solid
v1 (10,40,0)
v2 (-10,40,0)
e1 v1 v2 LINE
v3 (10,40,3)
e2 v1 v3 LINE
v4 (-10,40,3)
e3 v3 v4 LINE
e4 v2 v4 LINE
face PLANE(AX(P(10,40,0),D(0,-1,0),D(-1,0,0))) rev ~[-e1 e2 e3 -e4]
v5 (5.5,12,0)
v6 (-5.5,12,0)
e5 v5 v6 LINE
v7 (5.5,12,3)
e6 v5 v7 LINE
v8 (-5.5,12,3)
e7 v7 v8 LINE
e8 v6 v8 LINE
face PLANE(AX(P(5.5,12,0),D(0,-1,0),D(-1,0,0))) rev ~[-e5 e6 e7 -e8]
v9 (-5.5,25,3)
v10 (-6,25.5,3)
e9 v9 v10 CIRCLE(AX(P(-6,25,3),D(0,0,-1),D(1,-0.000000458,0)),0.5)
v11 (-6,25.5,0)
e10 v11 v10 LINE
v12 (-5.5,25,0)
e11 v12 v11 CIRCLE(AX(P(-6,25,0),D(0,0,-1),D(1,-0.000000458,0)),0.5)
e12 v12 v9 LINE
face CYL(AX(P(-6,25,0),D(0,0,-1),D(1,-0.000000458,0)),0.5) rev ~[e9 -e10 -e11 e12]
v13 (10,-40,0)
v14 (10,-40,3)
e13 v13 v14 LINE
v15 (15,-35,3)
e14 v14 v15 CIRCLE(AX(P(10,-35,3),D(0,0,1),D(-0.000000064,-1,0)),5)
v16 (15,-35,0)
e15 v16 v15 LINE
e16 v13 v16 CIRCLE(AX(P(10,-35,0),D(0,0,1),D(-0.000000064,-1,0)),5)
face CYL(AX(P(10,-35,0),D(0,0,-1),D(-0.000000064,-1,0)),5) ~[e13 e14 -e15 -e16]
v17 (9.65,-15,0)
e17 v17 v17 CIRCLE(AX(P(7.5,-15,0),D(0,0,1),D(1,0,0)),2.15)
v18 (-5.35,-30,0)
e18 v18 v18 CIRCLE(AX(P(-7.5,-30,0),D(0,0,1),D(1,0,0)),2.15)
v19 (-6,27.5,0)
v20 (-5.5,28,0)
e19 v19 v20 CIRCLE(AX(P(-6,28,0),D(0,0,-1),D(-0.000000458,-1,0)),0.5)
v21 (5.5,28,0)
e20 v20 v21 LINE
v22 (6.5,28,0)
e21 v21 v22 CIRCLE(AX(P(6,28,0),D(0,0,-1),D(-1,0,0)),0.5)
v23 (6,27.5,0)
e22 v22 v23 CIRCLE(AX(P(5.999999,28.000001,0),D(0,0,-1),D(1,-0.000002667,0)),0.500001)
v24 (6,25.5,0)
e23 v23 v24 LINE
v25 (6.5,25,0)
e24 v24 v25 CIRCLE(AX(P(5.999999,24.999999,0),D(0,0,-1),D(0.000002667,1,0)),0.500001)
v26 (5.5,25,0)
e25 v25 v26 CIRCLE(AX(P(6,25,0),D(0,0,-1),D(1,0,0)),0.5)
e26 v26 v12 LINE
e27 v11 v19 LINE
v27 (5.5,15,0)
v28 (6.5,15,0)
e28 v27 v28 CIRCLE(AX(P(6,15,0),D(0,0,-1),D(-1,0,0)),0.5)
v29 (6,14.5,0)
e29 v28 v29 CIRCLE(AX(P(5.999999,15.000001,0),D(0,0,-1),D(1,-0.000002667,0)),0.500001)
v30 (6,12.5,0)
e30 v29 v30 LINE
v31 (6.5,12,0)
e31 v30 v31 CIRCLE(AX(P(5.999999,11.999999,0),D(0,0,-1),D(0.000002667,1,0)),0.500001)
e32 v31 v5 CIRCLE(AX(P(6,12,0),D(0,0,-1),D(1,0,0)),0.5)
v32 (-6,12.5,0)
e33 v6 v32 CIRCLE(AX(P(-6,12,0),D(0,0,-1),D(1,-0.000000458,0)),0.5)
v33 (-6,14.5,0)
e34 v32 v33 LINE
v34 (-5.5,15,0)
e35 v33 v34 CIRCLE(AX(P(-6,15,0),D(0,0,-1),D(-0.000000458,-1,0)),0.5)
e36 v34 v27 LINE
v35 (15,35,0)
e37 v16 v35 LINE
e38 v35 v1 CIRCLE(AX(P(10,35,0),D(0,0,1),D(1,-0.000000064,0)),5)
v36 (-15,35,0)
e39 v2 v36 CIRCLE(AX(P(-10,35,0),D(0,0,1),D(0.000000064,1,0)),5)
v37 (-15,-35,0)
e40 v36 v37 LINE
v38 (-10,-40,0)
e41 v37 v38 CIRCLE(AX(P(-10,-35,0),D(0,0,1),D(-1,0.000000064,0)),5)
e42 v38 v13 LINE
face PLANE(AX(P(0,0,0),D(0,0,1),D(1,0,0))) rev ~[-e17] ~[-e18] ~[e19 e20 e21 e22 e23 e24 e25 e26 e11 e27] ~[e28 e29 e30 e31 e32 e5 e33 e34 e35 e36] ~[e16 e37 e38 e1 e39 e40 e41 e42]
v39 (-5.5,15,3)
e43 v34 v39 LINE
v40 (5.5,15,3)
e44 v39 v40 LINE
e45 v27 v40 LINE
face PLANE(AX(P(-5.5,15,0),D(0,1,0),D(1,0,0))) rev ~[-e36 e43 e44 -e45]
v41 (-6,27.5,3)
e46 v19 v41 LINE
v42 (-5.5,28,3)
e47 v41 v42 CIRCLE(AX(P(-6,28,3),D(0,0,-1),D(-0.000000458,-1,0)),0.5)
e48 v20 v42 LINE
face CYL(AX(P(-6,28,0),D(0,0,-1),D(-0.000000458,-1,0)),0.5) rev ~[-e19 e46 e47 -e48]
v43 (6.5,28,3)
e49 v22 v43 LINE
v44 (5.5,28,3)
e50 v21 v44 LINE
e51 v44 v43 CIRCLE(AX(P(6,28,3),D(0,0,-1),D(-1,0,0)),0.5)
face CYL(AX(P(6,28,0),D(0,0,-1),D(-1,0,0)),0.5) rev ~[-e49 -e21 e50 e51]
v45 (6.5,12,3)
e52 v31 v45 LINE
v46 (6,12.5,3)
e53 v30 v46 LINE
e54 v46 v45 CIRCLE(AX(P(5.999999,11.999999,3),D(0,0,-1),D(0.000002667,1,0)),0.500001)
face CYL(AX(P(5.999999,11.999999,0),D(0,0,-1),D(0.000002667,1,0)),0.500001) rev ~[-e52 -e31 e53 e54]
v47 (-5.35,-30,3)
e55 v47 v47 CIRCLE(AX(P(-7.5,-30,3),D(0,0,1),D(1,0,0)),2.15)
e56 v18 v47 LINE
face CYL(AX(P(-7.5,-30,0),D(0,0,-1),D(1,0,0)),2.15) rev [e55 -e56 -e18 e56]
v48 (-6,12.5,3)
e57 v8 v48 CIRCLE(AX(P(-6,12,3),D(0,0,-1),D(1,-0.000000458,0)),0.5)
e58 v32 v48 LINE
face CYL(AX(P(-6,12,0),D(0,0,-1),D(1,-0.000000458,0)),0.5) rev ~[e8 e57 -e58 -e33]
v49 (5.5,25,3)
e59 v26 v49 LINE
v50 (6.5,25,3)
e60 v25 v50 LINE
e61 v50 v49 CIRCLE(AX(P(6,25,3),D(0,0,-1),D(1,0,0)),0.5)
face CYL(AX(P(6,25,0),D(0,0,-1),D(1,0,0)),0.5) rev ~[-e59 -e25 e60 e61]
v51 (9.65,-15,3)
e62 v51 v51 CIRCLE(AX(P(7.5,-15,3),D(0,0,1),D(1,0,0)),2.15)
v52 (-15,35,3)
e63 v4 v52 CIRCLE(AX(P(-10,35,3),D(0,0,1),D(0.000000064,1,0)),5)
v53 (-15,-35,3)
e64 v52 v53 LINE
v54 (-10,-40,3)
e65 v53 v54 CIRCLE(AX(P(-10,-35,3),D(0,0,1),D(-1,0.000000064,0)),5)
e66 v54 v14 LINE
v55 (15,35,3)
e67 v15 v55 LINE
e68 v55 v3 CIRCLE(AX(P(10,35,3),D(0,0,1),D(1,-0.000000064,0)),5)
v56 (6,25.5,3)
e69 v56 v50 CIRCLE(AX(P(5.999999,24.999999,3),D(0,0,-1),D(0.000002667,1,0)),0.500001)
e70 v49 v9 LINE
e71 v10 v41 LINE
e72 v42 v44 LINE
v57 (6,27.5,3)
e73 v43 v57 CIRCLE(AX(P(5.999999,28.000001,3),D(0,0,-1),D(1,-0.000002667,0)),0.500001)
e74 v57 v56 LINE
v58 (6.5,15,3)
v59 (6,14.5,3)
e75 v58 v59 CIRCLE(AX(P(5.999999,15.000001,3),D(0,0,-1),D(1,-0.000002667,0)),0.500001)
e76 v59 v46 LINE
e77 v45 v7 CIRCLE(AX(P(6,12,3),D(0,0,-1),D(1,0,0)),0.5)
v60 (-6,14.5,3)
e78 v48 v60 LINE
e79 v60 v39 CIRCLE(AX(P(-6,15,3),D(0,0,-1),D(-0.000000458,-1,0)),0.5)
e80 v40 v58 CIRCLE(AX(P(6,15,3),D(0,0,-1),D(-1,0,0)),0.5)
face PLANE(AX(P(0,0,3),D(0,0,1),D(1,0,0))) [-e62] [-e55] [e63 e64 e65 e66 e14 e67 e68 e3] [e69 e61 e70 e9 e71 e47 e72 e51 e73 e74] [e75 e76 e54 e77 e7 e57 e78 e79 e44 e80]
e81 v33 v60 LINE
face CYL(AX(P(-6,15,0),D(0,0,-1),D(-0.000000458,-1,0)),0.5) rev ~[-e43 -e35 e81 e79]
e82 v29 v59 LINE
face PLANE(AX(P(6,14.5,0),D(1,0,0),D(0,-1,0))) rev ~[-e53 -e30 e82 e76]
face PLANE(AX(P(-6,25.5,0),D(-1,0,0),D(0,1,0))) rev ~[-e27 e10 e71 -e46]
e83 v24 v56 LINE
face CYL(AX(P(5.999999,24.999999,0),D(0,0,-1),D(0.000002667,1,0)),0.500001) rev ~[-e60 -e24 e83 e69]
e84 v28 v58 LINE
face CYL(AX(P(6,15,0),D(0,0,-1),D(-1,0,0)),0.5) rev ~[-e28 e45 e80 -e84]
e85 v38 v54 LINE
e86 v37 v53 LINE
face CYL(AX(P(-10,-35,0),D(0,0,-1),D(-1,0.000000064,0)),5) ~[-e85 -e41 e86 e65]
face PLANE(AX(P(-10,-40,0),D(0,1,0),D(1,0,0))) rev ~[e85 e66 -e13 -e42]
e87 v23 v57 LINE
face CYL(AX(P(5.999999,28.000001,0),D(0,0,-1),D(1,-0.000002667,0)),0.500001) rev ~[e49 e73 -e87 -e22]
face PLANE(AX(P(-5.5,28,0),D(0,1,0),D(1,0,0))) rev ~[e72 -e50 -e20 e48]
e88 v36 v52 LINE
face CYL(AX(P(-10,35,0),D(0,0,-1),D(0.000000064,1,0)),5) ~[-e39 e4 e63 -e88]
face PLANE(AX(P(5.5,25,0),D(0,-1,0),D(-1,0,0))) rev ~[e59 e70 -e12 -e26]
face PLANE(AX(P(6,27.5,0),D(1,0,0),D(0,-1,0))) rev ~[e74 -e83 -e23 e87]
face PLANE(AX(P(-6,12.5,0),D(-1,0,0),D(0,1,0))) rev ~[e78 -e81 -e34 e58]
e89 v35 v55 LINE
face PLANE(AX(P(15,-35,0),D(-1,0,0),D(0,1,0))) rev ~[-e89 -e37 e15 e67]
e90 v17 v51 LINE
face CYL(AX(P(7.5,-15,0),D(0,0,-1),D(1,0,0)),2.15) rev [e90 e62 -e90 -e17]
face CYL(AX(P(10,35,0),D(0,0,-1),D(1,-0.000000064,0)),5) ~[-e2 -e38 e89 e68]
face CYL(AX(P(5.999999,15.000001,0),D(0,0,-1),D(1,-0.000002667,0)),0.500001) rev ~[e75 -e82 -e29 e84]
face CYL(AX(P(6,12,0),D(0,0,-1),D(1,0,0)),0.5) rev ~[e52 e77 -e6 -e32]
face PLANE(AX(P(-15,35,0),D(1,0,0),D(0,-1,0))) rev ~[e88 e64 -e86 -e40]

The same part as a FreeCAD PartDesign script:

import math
import FreeCAD as App
import Part
import Sketcher
from FreeCAD import Vector

doc = App.newDocument("Part")
body = doc.addObject("PartDesign::Body", "Body")

# Sketch on XY plane
sketch1 = body.newObject("Sketcher::SketchObject", "Sketch")
sketch1.AttachmentSupport = (doc.getObject("XY_Plane"), [""])
sketch1.MapMode = "FlatFace"
sketch1.addGeometry([
    Part.ArcOfCircle(Part.Circle(Vector(10, 35, 0), Vector(0, 0, 1), 5), math.radians(0), math.radians(90)),  # 0
    Part.LineSegment(Vector(10, 40, 0), Vector(-10, 40, 0)),  # 1
    Part.ArcOfCircle(Part.Circle(Vector(-10, 35, 0), Vector(0, 0, 1), 5), math.radians(90), math.radians(180)),  # 2
    Part.LineSegment(Vector(-15, 35, 0), Vector(-15, -35, 0)),  # 3
    Part.ArcOfCircle(Part.Circle(Vector(-10, -35, 0), Vector(0, 0, 1), 5), math.radians(180), math.radians(270)),  # 4
    Part.LineSegment(Vector(-10, -40, 0), Vector(10, -40, 0)),  # 5
    Part.ArcOfCircle(Part.Circle(Vector(10, -35, 0), Vector(0, 0, 1), 5), math.radians(-90), math.radians(0)),  # 6
    Part.LineSegment(Vector(15, -35, 0), Vector(15, 35, 0)),  # 7
    Part.Circle(Vector(-7.5, -30, 0), Vector(0, 0, 1), 2.15),  # 8
    Part.Circle(Vector(7.5, -15, 0), Vector(0, 0, 1), 2.15),  # 9
    Part.ArcOfCircle(Part.Circle(Vector(6, 12, 0), Vector(0, 0, 1), 0.5), math.radians(180), math.radians(360)),  # 10
    Part.LineSegment(Vector(5.5, 12, 0), Vector(-5.5, 12, 0)),  # 11
    Part.ArcOfCircle(Part.Circle(Vector(-6, 12, 0), Vector(0, 0, 1), 0.5), math.radians(90), math.radians(360)),  # 12
    Part.LineSegment(Vector(-6, 12.5, 0), Vector(-6, 14.5, 0)),  # 13
    Part.ArcOfCircle(Part.Circle(Vector(-6, 15, 0), Vector(0, 0, 1), 0.5), math.radians(0), math.radians(270)),  # 14
    Part.LineSegment(Vector(-5.5, 15, 0), Vector(5.5, 15, 0)),  # 15
    Part.ArcOfCircle(Part.Circle(Vector(6, 15, 0), Vector(0, 0, 1), 0.5), math.radians(0), math.radians(180)),  # 16
    Part.ArcOfCircle(Part.Circle(Vector(6, 15, 0), Vector(0, 0, 1), 0.5), math.radians(-90), math.radians(0)),  # 17
    Part.LineSegment(Vector(6, 14.5, 0), Vector(6, 12.5, 0)),  # 18
    Part.ArcOfCircle(Part.Circle(Vector(6, 12, 0), Vector(0, 0, 1), 0.5), math.radians(0), math.radians(90)),  # 19
    Part.ArcOfCircle(Part.Circle(Vector(6, 25, 0), Vector(0, 0, 1), 0.5), math.radians(180), math.radians(360)),  # 20
    Part.LineSegment(Vector(5.5, 25, 0), Vector(-5.5, 25, 0)),  # 21
    Part.ArcOfCircle(Part.Circle(Vector(-6, 25, 0), Vector(0, 0, 1), 0.5), math.radians(90), math.radians(360)),  # 22
    Part.LineSegment(Vector(-6, 25.5, 0), Vector(-6, 27.5, 0)),  # 23
    Part.ArcOfCircle(Part.Circle(Vector(-6, 28, 0), Vector(0, 0, 1), 0.5), math.radians(0), math.radians(270)),  # 24
    Part.LineSegment(Vector(-5.5, 28, 0), Vector(5.5, 28, 0)),  # 25
    Part.ArcOfCircle(Part.Circle(Vector(6, 28, 0), Vector(0, 0, 1), 0.5), math.radians(0), math.radians(180)),  # 26
    Part.ArcOfCircle(Part.Circle(Vector(6, 28, 0), Vector(0, 0, 1), 0.5), math.radians(-90), math.radians(0)),  # 27
    Part.LineSegment(Vector(6, 27.5, 0), Vector(6, 25.5, 0)),  # 28
    Part.ArcOfCircle(Part.Circle(Vector(6, 25, 0), Vector(0, 0, 1), 0.5), math.radians(0), math.radians(90)),  # 29
], False)
sketch1.addConstraint([
    Sketcher.Constraint("Tangent", 0, 2, 1, 1),
    Sketcher.Constraint("Tangent", 1, 2, 2, 1),
    Sketcher.Constraint("Tangent", 2, 2, 3, 1),
    Sketcher.Constraint("Tangent", 3, 2, 4, 1),
    Sketcher.Constraint("Tangent", 4, 2, 5, 1),
    Sketcher.Constraint("Tangent", 5, 2, 6, 1),
    Sketcher.Constraint("Tangent", 6, 2, 7, 1),
    Sketcher.Constraint("Tangent", 7, 2, 0, 1),
    Sketcher.Constraint("Coincident", 10, 1, 11, 1),
    Sketcher.Constraint("Coincident", 11, 2, 12, 2),
    Sketcher.Constraint("Coincident", 12, 1, 13, 1),
    Sketcher.Constraint("Coincident", 13, 2, 14, 2),
    Sketcher.Constraint("Coincident", 14, 1, 15, 1),
    Sketcher.Constraint("Coincident", 15, 2, 16, 2),
    Sketcher.Constraint("Coincident", 16, 1, 17, 2),
    Sketcher.Constraint("Coincident", 17, 1, 18, 1),
    Sketcher.Constraint("Coincident", 18, 2, 19, 2),
    Sketcher.Constraint("Coincident", 19, 1, 10, 2),
    Sketcher.Constraint("Coincident", 20, 1, 21, 1),
    Sketcher.Constraint("Coincident", 21, 2, 22, 2),
    Sketcher.Constraint("Coincident", 22, 1, 23, 1),
    Sketcher.Constraint("Coincident", 23, 2, 24, 2),
    Sketcher.Constraint("Coincident", 24, 1, 25, 1),
    Sketcher.Constraint("Coincident", 25, 2, 26, 2),
    Sketcher.Constraint("Coincident", 26, 1, 27, 2),
    Sketcher.Constraint("Coincident", 27, 1, 28, 1),
    Sketcher.Constraint("Coincident", 28, 2, 29, 2),
    Sketcher.Constraint("Coincident", 29, 1, 20, 2),
    Sketcher.Constraint("Horizontal", 1),
    Sketcher.Constraint("Vertical", 3),
    Sketcher.Constraint("Horizontal", 5),
    Sketcher.Constraint("Vertical", 7),
    Sketcher.Constraint("Horizontal", 11),
    Sketcher.Constraint("Vertical", 13),
    Sketcher.Constraint("Horizontal", 15),
    Sketcher.Constraint("Vertical", 18),
    Sketcher.Constraint("Horizontal", 21),
    Sketcher.Constraint("Vertical", 23),
    Sketcher.Constraint("Horizontal", 25),
    Sketcher.Constraint("Vertical", 28),
    Sketcher.Constraint("Coincident", 17, 3, 16, 3),
    Sketcher.Constraint("Coincident", 19, 3, 10, 3),
    Sketcher.Constraint("Coincident", 27, 3, 26, 3),
    Sketcher.Constraint("Coincident", 29, 3, 20, 3),
    Sketcher.Constraint("Equal", 0, 2),
    Sketcher.Constraint("Equal", 2, 4),
    Sketcher.Constraint("Equal", 4, 6),
    Sketcher.Constraint("Equal", 8, 9),
    Sketcher.Constraint("Equal", 10, 12),
    Sketcher.Constraint("Equal", 12, 14),
    Sketcher.Constraint("Equal", 14, 16),
    Sketcher.Constraint("Equal", 19, 20),
    Sketcher.Constraint("Equal", 20, 22),
    Sketcher.Constraint("Equal", 22, 24),
    Sketcher.Constraint("Equal", 24, 26),
    Sketcher.Constraint("Symmetric", 0, 3, 4, 3, -1, 1),
    Sketcher.Constraint("Symmetric", 10, 3, 12, 3, -2),
    Sketcher.Constraint("Symmetric", 14, 3, 16, 3, -2),
    Sketcher.Constraint("Symmetric", 20, 3, 22, 3, -2),
    Sketcher.Constraint("Symmetric", 24, 3, 26, 3, -2),
    Sketcher.Constraint("Horizontal", 19, 3, 10, 1),
    Sketcher.Constraint("Horizontal", 17, 3, 14, 1),
    Sketcher.Constraint("Horizontal", 15, 2, 16, 1),
    Sketcher.Constraint("Horizontal", 11, 2, 19, 1),
    Sketcher.Constraint("Horizontal", 29, 3, 20, 1),
    Sketcher.Constraint("Horizontal", 27, 3, 24, 1),
    Sketcher.Constraint("Horizontal", 25, 2, 26, 1),
    Sketcher.Constraint("Horizontal", 21, 2, 29, 1),
    Sketcher.Constraint("Vertical", 12, 3, 14, 3),
    Sketcher.Constraint("Vertical", 19, 3, 20, 3),
    Sketcher.Constraint("Vertical", 22, 3, 24, 3),
    Sketcher.Constraint("Vertical", 24, 3, 12, 1),
    Sketcher.Constraint("Vertical", 29, 3, 17, 1),
    Sketcher.Constraint("Vertical", 13, 2, 22, 1),
    Sketcher.Constraint("Vertical", 18, 2, 27, 1),
    Sketcher.Constraint("Equal", 18, 23),
    Sketcher.Constraint("Radius", 0, 5.0),
    Sketcher.Constraint("Diameter", 8, 4.3),
    Sketcher.Constraint("Radius", 10, 0.5),
    Sketcher.Constraint("DistanceX", 1, 2, 1, 1, 20.0),
    Sketcher.Constraint("DistanceX", 11, 2, 11, 1, 11.0),
    Sketcher.Constraint("DistanceY", 3, 2, 3, 1, 70.0),
    Sketcher.Constraint("DistanceY", 13, 1, 13, 2, 2.0),
    Sketcher.Constraint("DistanceY", 8, 3, -1, 1, 30.0),
    Sketcher.Constraint("DistanceY", 9, 3, -1, 1, 15.0),
    Sketcher.Constraint("DistanceY", -1, 1, 10, 3, 12.0),
    Sketcher.Constraint("DistanceY", -1, 1, 20, 3, 25.0),
    Sketcher.Constraint("DistanceX", 8, 3, 9, 3, 15.0),
    Sketcher.Constraint("DistanceX", 8, 3, -1, 1, 7.5),
])
pad1 = body.newObject("PartDesign::Pad", "Pad")
pad1.Profile = sketch1
pad1.Length = 3

doc.recompute()
